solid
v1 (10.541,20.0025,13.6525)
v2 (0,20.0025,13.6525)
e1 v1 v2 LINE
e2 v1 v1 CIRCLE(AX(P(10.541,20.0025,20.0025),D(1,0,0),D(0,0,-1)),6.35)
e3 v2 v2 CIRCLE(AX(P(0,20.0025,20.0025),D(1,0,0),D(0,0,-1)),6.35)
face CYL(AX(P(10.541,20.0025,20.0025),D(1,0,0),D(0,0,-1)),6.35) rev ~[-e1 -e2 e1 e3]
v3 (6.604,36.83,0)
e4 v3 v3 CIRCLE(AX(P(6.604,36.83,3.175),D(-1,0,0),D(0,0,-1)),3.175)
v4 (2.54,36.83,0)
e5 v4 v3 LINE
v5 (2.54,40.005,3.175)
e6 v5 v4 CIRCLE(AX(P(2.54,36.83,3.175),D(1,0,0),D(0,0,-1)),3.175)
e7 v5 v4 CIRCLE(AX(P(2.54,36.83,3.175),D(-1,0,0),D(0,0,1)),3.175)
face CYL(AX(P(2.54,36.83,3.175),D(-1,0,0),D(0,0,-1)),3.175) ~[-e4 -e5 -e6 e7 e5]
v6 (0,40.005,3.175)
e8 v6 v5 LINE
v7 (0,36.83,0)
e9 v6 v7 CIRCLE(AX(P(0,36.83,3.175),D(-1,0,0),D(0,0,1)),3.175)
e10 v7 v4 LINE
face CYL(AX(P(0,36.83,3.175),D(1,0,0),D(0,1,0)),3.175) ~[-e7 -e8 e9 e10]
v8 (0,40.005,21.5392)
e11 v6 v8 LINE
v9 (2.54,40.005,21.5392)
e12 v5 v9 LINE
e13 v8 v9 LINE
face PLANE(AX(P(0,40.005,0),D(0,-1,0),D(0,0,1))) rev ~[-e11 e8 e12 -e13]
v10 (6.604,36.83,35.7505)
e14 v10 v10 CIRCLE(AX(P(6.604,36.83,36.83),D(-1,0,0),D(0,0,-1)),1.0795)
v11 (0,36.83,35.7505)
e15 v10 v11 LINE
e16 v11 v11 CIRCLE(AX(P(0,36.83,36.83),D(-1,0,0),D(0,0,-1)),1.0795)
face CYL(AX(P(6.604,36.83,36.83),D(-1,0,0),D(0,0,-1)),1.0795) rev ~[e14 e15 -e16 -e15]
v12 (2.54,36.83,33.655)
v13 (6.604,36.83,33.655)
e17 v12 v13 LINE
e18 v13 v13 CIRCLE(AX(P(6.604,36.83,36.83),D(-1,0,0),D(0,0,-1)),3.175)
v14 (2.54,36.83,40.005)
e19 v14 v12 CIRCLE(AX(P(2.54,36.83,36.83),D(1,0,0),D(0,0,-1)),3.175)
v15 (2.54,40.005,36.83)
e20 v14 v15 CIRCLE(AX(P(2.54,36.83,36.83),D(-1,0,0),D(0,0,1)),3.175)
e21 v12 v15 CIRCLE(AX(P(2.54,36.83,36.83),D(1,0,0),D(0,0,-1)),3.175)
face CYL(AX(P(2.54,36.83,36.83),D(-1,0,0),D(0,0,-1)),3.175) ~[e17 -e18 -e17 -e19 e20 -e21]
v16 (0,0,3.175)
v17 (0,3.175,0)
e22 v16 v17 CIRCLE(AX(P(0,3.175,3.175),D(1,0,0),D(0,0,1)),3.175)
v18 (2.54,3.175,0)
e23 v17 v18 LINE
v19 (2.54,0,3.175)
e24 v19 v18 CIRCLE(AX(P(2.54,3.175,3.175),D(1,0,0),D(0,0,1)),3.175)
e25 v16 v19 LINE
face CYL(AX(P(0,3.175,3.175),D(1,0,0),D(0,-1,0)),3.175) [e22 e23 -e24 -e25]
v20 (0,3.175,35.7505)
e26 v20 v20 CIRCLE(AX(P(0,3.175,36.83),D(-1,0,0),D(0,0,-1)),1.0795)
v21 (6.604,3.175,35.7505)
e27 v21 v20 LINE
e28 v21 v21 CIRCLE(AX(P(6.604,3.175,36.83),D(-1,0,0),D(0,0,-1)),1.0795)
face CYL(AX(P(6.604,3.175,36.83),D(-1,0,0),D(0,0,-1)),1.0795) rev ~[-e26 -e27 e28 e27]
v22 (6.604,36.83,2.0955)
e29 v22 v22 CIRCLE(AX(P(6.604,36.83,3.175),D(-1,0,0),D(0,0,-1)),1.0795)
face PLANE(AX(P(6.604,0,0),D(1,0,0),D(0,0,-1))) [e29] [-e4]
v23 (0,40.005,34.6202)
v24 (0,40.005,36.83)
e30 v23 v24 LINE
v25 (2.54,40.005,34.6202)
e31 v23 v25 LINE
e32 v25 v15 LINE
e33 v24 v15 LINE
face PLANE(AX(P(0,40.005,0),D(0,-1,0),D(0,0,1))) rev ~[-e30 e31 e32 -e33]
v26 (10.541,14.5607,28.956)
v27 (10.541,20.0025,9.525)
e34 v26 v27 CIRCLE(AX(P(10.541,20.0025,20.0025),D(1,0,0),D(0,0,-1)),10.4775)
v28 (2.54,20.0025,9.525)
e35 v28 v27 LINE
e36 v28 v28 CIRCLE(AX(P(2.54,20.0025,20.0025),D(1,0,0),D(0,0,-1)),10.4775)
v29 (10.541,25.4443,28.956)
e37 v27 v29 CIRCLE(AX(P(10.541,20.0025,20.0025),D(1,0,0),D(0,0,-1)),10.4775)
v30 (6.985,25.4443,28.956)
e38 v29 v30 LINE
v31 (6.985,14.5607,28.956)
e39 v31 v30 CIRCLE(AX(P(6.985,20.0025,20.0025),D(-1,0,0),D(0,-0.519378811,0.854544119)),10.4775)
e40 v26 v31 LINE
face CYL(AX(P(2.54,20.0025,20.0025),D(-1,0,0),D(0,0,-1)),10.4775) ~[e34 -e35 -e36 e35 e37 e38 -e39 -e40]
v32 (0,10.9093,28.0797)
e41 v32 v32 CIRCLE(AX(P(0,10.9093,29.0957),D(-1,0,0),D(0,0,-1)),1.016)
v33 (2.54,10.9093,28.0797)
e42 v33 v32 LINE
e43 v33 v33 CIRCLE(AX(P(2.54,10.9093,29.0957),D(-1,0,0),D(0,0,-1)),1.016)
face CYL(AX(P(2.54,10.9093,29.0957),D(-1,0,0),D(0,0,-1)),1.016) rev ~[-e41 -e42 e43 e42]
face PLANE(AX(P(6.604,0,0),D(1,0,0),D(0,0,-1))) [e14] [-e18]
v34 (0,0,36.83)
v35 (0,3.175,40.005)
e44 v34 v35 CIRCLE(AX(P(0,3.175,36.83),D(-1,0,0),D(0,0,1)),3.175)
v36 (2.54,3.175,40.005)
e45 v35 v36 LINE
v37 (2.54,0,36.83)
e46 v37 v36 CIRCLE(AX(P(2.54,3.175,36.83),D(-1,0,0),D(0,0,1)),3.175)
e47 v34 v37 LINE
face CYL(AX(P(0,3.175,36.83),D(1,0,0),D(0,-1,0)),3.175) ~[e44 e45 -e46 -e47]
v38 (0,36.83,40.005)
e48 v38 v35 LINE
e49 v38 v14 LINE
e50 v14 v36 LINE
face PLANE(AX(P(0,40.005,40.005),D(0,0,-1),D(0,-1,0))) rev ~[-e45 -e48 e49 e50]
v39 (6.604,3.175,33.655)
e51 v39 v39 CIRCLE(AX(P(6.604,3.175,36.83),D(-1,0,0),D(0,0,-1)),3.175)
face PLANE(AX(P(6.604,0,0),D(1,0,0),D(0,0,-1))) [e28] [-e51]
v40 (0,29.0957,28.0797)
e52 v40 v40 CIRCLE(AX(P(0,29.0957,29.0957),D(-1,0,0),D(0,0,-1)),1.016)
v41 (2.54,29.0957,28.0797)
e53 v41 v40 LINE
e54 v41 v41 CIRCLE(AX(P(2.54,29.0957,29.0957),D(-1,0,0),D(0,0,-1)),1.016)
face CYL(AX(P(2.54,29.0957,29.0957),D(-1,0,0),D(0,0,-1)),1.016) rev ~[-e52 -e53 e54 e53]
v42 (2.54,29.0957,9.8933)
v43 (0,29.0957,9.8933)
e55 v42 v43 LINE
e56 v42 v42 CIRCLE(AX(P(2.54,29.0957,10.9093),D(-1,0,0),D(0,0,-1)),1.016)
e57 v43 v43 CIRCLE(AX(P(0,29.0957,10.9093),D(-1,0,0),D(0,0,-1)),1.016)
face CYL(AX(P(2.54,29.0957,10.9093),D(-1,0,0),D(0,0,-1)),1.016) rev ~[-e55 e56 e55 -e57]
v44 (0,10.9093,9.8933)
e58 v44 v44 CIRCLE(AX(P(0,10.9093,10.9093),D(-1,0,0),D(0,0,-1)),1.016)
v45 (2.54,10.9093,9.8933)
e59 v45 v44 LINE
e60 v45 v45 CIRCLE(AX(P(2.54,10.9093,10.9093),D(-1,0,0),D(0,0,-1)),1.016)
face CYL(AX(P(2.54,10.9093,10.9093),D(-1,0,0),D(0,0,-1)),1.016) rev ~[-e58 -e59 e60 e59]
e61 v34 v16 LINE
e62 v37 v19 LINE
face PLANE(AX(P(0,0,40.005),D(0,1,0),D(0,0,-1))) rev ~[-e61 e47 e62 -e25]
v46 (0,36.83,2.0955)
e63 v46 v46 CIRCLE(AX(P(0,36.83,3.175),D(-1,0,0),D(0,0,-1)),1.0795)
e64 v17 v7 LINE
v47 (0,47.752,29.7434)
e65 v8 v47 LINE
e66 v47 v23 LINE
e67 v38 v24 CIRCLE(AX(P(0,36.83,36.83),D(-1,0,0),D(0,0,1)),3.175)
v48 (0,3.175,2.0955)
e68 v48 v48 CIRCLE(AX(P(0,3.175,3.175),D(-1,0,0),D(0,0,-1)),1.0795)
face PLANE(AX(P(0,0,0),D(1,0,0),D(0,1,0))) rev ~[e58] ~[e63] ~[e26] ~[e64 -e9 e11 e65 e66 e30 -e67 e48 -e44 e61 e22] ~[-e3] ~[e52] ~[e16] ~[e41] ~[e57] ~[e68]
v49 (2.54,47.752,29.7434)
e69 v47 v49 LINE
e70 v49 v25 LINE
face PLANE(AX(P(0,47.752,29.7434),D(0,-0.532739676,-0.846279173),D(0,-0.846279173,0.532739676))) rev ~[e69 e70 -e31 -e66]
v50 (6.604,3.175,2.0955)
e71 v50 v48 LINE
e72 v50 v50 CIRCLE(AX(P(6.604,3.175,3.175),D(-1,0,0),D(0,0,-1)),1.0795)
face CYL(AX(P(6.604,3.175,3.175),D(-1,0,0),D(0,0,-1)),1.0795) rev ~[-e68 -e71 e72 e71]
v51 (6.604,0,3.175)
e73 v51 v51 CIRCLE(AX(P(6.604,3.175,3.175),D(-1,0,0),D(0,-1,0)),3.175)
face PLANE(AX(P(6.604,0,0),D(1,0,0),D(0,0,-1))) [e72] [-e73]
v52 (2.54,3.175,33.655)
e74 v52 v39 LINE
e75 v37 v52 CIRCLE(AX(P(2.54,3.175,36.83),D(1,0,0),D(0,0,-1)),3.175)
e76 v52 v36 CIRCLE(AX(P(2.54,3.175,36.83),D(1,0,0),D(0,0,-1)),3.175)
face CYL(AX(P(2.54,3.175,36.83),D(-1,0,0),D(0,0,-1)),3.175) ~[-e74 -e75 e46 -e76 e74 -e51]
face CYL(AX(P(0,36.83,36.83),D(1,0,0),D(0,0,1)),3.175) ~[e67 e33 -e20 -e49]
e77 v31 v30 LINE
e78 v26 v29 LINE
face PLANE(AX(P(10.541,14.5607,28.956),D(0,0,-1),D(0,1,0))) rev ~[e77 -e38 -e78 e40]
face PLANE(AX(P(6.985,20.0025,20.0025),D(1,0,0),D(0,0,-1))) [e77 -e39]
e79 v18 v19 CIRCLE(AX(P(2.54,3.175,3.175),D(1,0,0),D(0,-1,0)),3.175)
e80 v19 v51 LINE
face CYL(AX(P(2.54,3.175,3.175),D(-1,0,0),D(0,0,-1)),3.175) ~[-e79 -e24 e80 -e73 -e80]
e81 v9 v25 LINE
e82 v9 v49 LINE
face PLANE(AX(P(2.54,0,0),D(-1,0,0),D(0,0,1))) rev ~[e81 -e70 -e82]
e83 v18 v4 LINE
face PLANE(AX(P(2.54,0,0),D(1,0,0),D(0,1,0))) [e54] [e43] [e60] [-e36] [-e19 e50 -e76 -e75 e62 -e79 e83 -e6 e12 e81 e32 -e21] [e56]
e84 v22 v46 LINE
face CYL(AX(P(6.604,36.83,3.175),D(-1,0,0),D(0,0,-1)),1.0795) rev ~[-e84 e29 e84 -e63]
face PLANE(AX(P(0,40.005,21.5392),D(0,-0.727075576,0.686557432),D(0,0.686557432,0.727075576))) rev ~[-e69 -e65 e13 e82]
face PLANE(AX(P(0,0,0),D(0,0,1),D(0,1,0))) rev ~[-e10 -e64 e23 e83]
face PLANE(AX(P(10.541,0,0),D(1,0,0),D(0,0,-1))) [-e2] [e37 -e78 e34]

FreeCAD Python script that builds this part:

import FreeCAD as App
import Part
import Sketcher

V = App.Vector
Q = App.Units.Quantity


def edges_at(feature, points):
    """Names of the edges that pass closest to the given points."""
    edges = feature.Shape.Edges
    near = lambda p: min(range(len(edges)), key=lambda i: edges[i].distToShape(Part.Vertex(*p))[0])
    return sorted({f"Edge{near(p) + 1}" for p in points})

doc = App.newDocument("Part")
body = doc.addObject("PartDesign::Body", "Body")

sketch1 = body.newObject("Sketcher::SketchObject", "Sketch")
sketch1.AttachmentSupport = (doc.getObject("YZ_Plane"), [""])
sketch1.MapMode = "FlatFace"
sketch1.addGeometry(Part.LineSegment(V(0, 40, 0), V(0, 0, 0)), False)
sketch1.addGeometry(Part.LineSegment(V(0, 0, 0), V(40, 0, 0)), False)
sketch1.addGeometry(Part.LineSegment(V(40, 0, 0), V(40, 40, 0)), False)
sketch1.addGeometry(Part.LineSegment(V(40, 40, 0), V(0, 40, 0)), False)
sketch1.addConstraint(Sketcher.Constraint("Coincident", 0, 2, 1, 1))
sketch1.addConstraint(Sketcher.Constraint("Coincident", 1, 2, 2, 1))
sketch1.addConstraint(Sketcher.Constraint("Coincident", 2, 2, 3, 1))
sketch1.addConstraint(Sketcher.Constraint("Coincident", 3, 2, 0, 1))
sketch1.addConstraint(Sketcher.Constraint("Vertical", 0))
sketch1.addConstraint(Sketcher.Constraint("Horizontal", 1))
sketch1.addConstraint(Sketcher.Constraint("Vertical", 2))
sketch1.addConstraint(Sketcher.Constraint("Horizontal", 3))
sketch1.addConstraint(Sketcher.Constraint("Coincident", 0, 2, -1, 1))
sketch1.addConstraint(Sketcher.Constraint("Equal", 3, 0))
sketch1.addConstraint(Sketcher.Constraint("DistanceX", 1, 1, 1, 2, Q("1.575 in")))
pad1 = body.newObject("PartDesign::Pad", "Pad")
pad1.Profile = sketch1
pad1.Length = Q("0.1 in")
doc.recompute()

fillet = body.newObject("PartDesign::Fillet", "Fillet")
fillet.Base = (pad1, edges_at(pad1, [
    (1.27, 40.005, 40.005),
    (1.27, 0, 40.005),
    (1.27, 0, 0),
    (1.27, 40.005, 0),
]))
fillet.Radius = Q("0.125 in")

sketch2 = body.newObject("Sketcher::SketchObject", "Sketch001")
sketch2.AttachmentSupport = (doc.getObject("YZ_Plane"), [""])
sketch2.MapMode = "FlatFace"
sketch2.AttachmentOffset = App.Placement(V(0, 0, 0.1 * 25.4), App.Rotation())
sketch2.addGeometry(Part.Circle(V(36.8, 3.2, 0), V(0, 0, 1), 3.2), False)
sketch2.addGeometry(Part.Circle(V(36.8, 36.8, 0), V(0, 0, 1), 3.2), False)
sketch2.addGeometry(Part.Circle(V(3.2, 36.8, 0), V(0, 0, 1), 3.2), False)
sketch2.addGeometry(Part.Circle(V(3.2, 3.2, 0), V(0, 0, 1), 3.2), False)
sketch2.addConstraint(Sketcher.Constraint("Equal", 0, 1))
sketch2.addConstraint(Sketcher.Constraint("Equal", 1, 2))
sketch2.addConstraint(Sketcher.Constraint("Equal", 2, 3))
sketch2.addConstraint(Sketcher.Constraint("Horizontal", 1, 3, 2, 3))
sketch2.addConstraint(Sketcher.Constraint("Horizontal", 0, 3, 3, 3))
sketch2.addConstraint(Sketcher.Constraint("Vertical", 0, 3, 1, 3))
sketch2.addConstraint(Sketcher.Constraint("Vertical", 2, 3, 3, 3))
sketch2.addConstraint(Sketcher.Constraint("Diameter", 0, Q("0.25 in")))
sketch2.addConstraint(Sketcher.Constraint("DistanceX", -1, 1, 0, 3, Q("1.45 in")))
sketch2.addConstraint(Sketcher.Constraint("DistanceY", -1, 1, 1, 3, Q("1.45 in")))
sketch2.addConstraint(Sketcher.Constraint("DistanceY", -1, 1, 0, 3, Q("0.125 in")))
sketch2.addConstraint(Sketcher.Constraint("DistanceX", -1, 1, 2, 3, Q("0.125 in")))
pad2 = body.newObject("PartDesign::Pad", "Pad001")
pad2.Profile = sketch2
pad2.Length = Q("0.16 in")

sketch3 = body.newObject("Sketcher::SketchObject", "Sketch002")
sketch3.AttachmentSupport = (doc.getObject("YZ_Plane"), [""])
sketch3.MapMode = "FlatFace"
sketch3.AttachmentOffset = App.Placement(V(0, 0, 0.26 * 25.4), App.Rotation())
sketch3.addGeometry(Part.Circle(V(36.8, 36.8, 0), V(0, 0, 1), 1.1), False)
sketch3.addGeometry(Part.Circle(V(36.8, 3.2, 0), V(0, 0, 1), 1.1), False)
sketch3.addGeometry(Part.Circle(V(3.2, 3.2, 0), V(0, 0, 1), 1.1), False)
sketch3.addGeometry(Part.Circle(V(3.2, 36.8, 0), V(0, 0, 1), 1.1), False)
sketch3.addConstraint(Sketcher.Constraint("Equal", 0, 1))
sketch3.addConstraint(Sketcher.Constraint("Equal", 1, 2))
sketch3.addConstraint(Sketcher.Constraint("Equal", 2, 3))
sketch3.addConstraint(Sketcher.Constraint("Horizontal", 1, 3, 2, 3))
sketch3.addConstraint(Sketcher.Constraint("Horizontal", 0, 3, 3, 3))
sketch3.addConstraint(Sketcher.Constraint("Vertical", 0, 3, 1, 3))
sketch3.addConstraint(Sketcher.Constraint("Vertical", 2, 3, 3, 3))
sketch3.addConstraint(Sketcher.Constraint("Diameter", 0, Q("0.085 in")))
sketch3.addConstraint(Sketcher.Constraint("DistanceX", -1, 1, 0, 3, Q("1.45 in")))
sketch3.addConstraint(Sketcher.Constraint("DistanceY", -1, 1, 0, 3, Q("1.45 in")))
sketch3.addConstraint(Sketcher.Constraint("DistanceY", -1, 1, 1, 3, Q("0.125 in")))
sketch3.addConstraint(Sketcher.Constraint("DistanceX", -1, 1, 2, 3, Q("0.125 in")))
doc.recompute()
hole = body.newObject("PartDesign::Hole", "Hole")
hole.Profile = sketch3
hole.ThreadType = "None"
hole.Diameter = Q("0.085 in")
hole.DepthType = "ThroughAll"

sketch4 = body.newObject("Sketcher::SketchObject", "Sketch003")
sketch4.AttachmentSupport = (doc.getObject("YZ_Plane"), [""])
sketch4.MapMode = "FlatFace"
sketch4.AttachmentOffset = App.Placement(V(0, 0, 0.1 * 25.4), App.Rotation())
sketch4.addGeometry(Part.Circle(V(10.9, 29.1, 0), V(0, 0, 1), 1), False)
sketch4.addGeometry(Part.Circle(V(29.1, 29.1, 0), V(0, 0, 1), 1), False)
sketch4.addGeometry(Part.Circle(V(10.9, 10.9, 0), V(0, 0, 1), 1), False)
sketch4.addGeometry(Part.Circle(V(29.1, 10.9, 0), V(0, 0, 1), 1), False)
sketch4.addConstraint(Sketcher.Constraint("Equal", 0, 1))
sketch4.addConstraint(Sketcher.Constraint("Equal", 1, 2))
sketch4.addConstraint(Sketcher.Constraint("Equal", 2, 3))
sketch4.addConstraint(Sketcher.Constraint("Horizontal", 0, 3, 1, 3))
sketch4.addConstraint(Sketcher.Constraint("Horizontal", 2, 3, 3, 3))
sketch4.addConstraint(Sketcher.Constraint("Vertical", 0, 3, 2, 3))
sketch4.addConstraint(Sketcher.Constraint("Vertical", 1, 3, 3, 3))
sketch4.addConstraint(Sketcher.Constraint("Diameter", 0, Q("0.08 in")))
sketch4.addConstraint(Sketcher.Constraint("DistanceX", 0, 3, 1, 3, Q("0.716 in")))
sketch4.addConstraint(Sketcher.Constraint("DistanceY", 2, 3, 0, 3, Q("0.716 in")))
sketch4.addConstraint(Sketcher.Constraint("DistanceX", -1, 1, 0, 3, Q("0.4295 in")))
sketch4.addConstraint(Sketcher.Constraint("DistanceY", -1, 1, 0, 3, Q("1.1455 in")))
doc.recompute()
hole2 = body.newObject("PartDesign::Hole", "Hole001")
hole2.Profile = sketch4
hole2.ThreadType = "None"
hole2.Diameter = Q("0.08 in")
hole2.DepthType = "ThroughAll"

sketch5 = body.newObject("Sketcher::SketchObject", "Sketch004")
sketch5.AttachmentSupport = (doc.getObject("YZ_Plane"), [""])
sketch5.MapMode = "FlatFace"
sketch5.AttachmentOffset = App.Placement(V(0, 0, 0.1 * 25.4), App.Rotation())
sketch5.addGeometry(Part.Circle(V(20, 20, 0), V(0, 0, 1), 10), False)
sketch5.addConstraint(Sketcher.Constraint("Diameter", 0, Q("0.825 in")))
sketch5.addConstraint(Sketcher.Constraint("DistanceX", -1, 1, 0, 3, Q("0.7875 in")))
sketch5.addConstraint(Sketcher.Constraint("DistanceY", -1, 1, 0, 3, Q("0.7875 in")))
pad3 = body.newObject("PartDesign::Pad", "Pad002")
pad3.Profile = sketch5
pad3.Length = Q("0.315 in")

sketch6 = body.newObject("Sketcher::SketchObject", "Sketch005")
sketch6.AttachmentSupport = (doc.getObject("YZ_Plane"), [""])
sketch6.MapMode = "FlatFace"
sketch6.AttachmentOffset = App.Placement(V(0, 0, 0.415 * 25.4), App.Rotation())
sketch6.addGeometry(Part.Circle(V(20, 20, 0), V(0, 0, 1), 6), False)
sketch6.addConstraint(Sketcher.Constraint("Diameter", 0, Q("0.5 in")))
sketch6.addConstraint(Sketcher.Constraint("DistanceX", -1, 1, 0, 3, Q("0.7875 in")))
sketch6.addConstraint(Sketcher.Constraint("DistanceY", -1, 1, 0, 3, Q("0.7875 in")))
pocket1 = body.newObject("PartDesign::Pocket", "Pocket")
pocket1.Profile = sketch6
pocket1.Type = "ThroughAll"

sketch7 = body.newObject("Sketcher::SketchObject", "Sketch006")
sketch7.AttachmentSupport = (doc.getObject("YZ_Plane"), [""])
sketch7.MapMode = "FlatFace"
sketch7.AttachmentOffset = App.Placement(V(0, 0, 0.415 * 25.4), App.Rotation())
sketch7.addGeometry(Part.LineSegment(V(14.6, 29, 0), V(25.4, 29, 0)), False)
sketch7.addGeometry(Part.LineSegment(V(25.4, 29, 0), V(25.4, 30.5, 0)), False)
sketch7.addGeometry(Part.LineSegment(V(25.4, 30.5, 0), V(14.6, 30.5, 0)), False)
sketch7.addGeometry(Part.LineSegment(V(14.6, 30.5, 0), V(14.6, 29, 0)), False)
sketch7.addConstraint(Sketcher.Constraint("Coincident", 0, 2, 1, 1))
sketch7.addConstraint(Sketcher.Constraint("Coincident", 1, 2, 2, 1))
sketch7.addConstraint(Sketcher.Constraint("Coincident", 2, 2, 3, 1))
sketch7.addConstraint(Sketcher.Constraint("Coincident", 3, 2, 0, 1))
sketch7.addConstraint(Sketcher.Constraint("Horizontal", 0))
sketch7.addConstraint(Sketcher.Constraint("Vertical", 1))
sketch7.addConstraint(Sketcher.Constraint("Horizontal", 2))
sketch7.addConstraint(Sketcher.Constraint("Vertical", 3))
sketch7.addConstraint(Sketcher.Constraint("DistanceY", 1, 1, 1, 2, Q("0.06 in")))
sketch7.addConstraint(Sketcher.Constraint("DistanceY", -1, 1, 1, 2, Q("1.2 in")))
sketch7.addConstraint(Sketcher.Constraint("DistanceX", 0, 1, 0, 2, Q("0.4285 in")))
sketch7.addConstraint(Sketcher.Constraint("DistanceX", -1, 1, 0, 2, 25.4443))
pocket2 = body.newObject("PartDesign::Pocket", "Pocket001")
pocket2.Profile = sketch7
pocket2.Length = Q("0.14 in")

sketch8 = body.newObject("Sketcher::SketchObject", "Sketch007")
sketch8.AttachmentSupport = (doc.getObject("YZ_Plane"), [""])
sketch8.MapMode = "FlatFace"
sketch8.addGeometry(Part.LineSegment(V(48, 30, 0), V(40, 22, 0)), False)
sketch8.addGeometry(Part.LineSegment(V(40, 22, 0), V(40, 35, 0)), False)
sketch8.addGeometry(Part.LineSegment(V(40, 35, 0), V(48, 30, 0)), False)
sketch8.addConstraint(Sketcher.Constraint("Coincident", 0, 2, 1, 1))
sketch8.addConstraint(Sketcher.Constraint("Coincident", 1, 2, 2, 1))
sketch8.addConstraint(Sketcher.Constraint("Coincident", 2, 2, 0, 1))
sketch8.addConstraint(Sketcher.Constraint("Vertical", 1))
sketch8.addConstraint(Sketcher.Constraint("DistanceX", -1, 1, 2, 2, Q("1.88 in")))
sketch8.addConstraint(Sketcher.Constraint("DistanceY", 1, 1, 1, 2, Q("0.515 in")))
sketch8.addConstraint(Sketcher.Constraint("Angle", 2, Q("-32.1908 deg")))
sketch8.addConstraint(Sketcher.Constraint("DistanceX", -1, 1, 0, 2, Q("1.575 in")))
sketch8.addConstraint(Sketcher.Constraint("DistanceY", -1, 1, 0, 2, Q("0.848 in")))
pad4 = body.newObject("PartDesign::Pad", "Pad003")
pad4.Profile = sketch8
pad4.Length = Q("0.1 in")

doc.recompute()
